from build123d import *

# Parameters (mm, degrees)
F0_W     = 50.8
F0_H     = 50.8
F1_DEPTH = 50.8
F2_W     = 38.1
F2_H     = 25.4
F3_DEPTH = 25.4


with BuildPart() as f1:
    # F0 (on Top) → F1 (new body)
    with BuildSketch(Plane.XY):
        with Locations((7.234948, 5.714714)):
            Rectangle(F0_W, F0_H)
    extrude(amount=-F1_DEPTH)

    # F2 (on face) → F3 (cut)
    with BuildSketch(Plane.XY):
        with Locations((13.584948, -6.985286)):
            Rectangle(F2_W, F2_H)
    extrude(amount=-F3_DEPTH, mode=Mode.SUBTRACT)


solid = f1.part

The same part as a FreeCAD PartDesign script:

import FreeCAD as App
import Part
import Sketcher

V = App.Vector
Q = App.Units.Quantity

doc = App.newDocument("Part")
params = doc.addObject("Spreadsheet::Sheet", "Params")
for row, (alias, value) in enumerate([
    ("sketch1_width", "2 in"),
    ("pad1_length", "2 in"),
    ("sketch2_height", "1 in"),
    ("sketch2_width", "1.5 in"),
    ("pocket1_length", "1 in"),
], start=1):
    params.set(f"A{row}", alias)
    params.set(f"B{row}", "=" + value)
    params.setAlias(f"B{row}", alias)

body = doc.addObject("PartDesign::Body", "Body")

sketch1 = doc.addObject("Sketcher::SketchObject", "Sketch")
body.addObject(sketch1)
sketch1.AttachmentSupport = (doc.XY_Plane, [""])
sketch1.MapMode = "FlatFace"
sketch1.addGeometry([
    Part.LineSegment(V(-18, 31, 0), V(-18, -20, 0)),
    Part.LineSegment(V(-18, -20, 0), V(33, -20, 0)),
    Part.LineSegment(V(33, -20, 0), V(33, 31, 0)),
    Part.LineSegment(V(33, 31, 0), V(-18, 31, 0)),
], False)
sketch1.addConstraint([
    Sketcher.Constraint("Coincident", 0, 2, 1, 1),
    Sketcher.Constraint("Coincident", 1, 2, 2, 1),
    Sketcher.Constraint("Coincident", 2, 2, 3, 1),
    Sketcher.Constraint("Coincident", 3, 2, 0, 1),
    Sketcher.Constraint("Vertical", 0),
    Sketcher.Constraint("Horizontal", 1),
    Sketcher.Constraint("Vertical", 2),
    Sketcher.Constraint("Horizontal", 3),
    Sketcher.Constraint("Equal", 3, 0),
    Sketcher.Constraint("DistanceX", 1, 1, 1, 2, Q("2 in")),
    Sketcher.Constraint("DistanceX", 0, 2, -1, 1, 18.165052),
    Sketcher.Constraint("DistanceY", 0, 2, -1, 1, 19.685286),
])
sketch1.setExpression("Constraints[9]", "Params.sketch1_width")
pad1 = doc.addObject("PartDesign::Pad", "Pad")
body.addObject(pad1)
pad1.Profile = sketch1
pad1.setExpression("Length", "Params.pad1_length")
pad1.Reversed = True

sketch2 = doc.addObject("Sketcher::SketchObject", "Sketch001")
body.addObject(sketch2)
sketch2.AttachmentSupport = (doc.XY_Plane, [""])
sketch2.MapMode = "FlatFace"
sketch2.addGeometry([
    Part.LineSegment(V(-5, 6, 0), V(-5, -20, 0)),
    Part.LineSegment(V(-5, -20, 0), V(33, -20, 0)),
    Part.LineSegment(V(33, -20, 0), V(33, 6, 0)),
    Part.LineSegment(V(33, 6, 0), V(-5, 6, 0)),
], False)
sketch2.addConstraint([
    Sketcher.Constraint("Coincident", 0, 2, 1, 1),
    Sketcher.Constraint("Coincident", 1, 2, 2, 1),
    Sketcher.Constraint("Coincident", 2, 2, 3, 1),
    Sketcher.Constraint("Coincident", 3, 2, 0, 1),
    Sketcher.Constraint("Vertical", 0),
    Sketcher.Constraint("Horizontal", 1),
    Sketcher.Constraint("Vertical", 2),
    Sketcher.Constraint("Horizontal", 3),
    Sketcher.Constraint("DistanceY", 0, 2, 0, 1, Q("1 in")),
    Sketcher.Constraint("DistanceX", 1, 1, 1, 2, Q("1.5 in")),
    Sketcher.Constraint("DistanceX", 0, 2, -1, 1, 5.465052),
    Sketcher.Constraint("DistanceY", 0, 2, -1, 1, 19.685286),
])
sketch2.setExpression("Constraints[8]", "Params.sketch2_height")
sketch2.setExpression("Constraints[9]", "Params.sketch2_width")
pocket1 = doc.addObject("PartDesign::Pocket", "Pocket")
body.addObject(pocket1)
pocket1.Profile = sketch2
pocket1.setExpression("Length", "Params.pocket1_length")

doc.recompute()
